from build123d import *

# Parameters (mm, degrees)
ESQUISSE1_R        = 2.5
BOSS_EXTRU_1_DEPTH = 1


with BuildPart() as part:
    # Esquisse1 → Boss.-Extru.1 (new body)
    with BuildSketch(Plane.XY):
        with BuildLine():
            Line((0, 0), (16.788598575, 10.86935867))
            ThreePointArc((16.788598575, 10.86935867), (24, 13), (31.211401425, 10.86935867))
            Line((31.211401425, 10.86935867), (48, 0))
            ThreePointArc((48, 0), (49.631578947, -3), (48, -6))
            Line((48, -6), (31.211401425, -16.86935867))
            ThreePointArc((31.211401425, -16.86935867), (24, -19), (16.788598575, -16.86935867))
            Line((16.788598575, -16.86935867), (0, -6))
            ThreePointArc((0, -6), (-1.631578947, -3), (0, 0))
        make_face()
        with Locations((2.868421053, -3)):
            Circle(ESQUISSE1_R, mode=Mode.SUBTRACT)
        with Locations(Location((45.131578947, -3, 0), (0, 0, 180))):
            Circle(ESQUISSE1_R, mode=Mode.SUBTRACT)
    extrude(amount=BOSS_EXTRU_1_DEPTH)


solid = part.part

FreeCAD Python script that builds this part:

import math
import FreeCAD as App
import Part
import Sketcher
from FreeCAD import Vector

doc = App.newDocument("Part")
body = doc.addObject("PartDesign::Body", "Body")

sketch1 = body.newObject("Sketcher::SketchObject", "Sketch")
sketch1.AttachmentSupport = (doc.getObject("XY_Plane"), [""])
sketch1.MapMode = "FlatFace"
sketch1.addGeometry(Part.LineSegment(Vector(16.8, 10.9, 0), Vector(0, 0, 0)), False)
sketch1.addGeometry(Part.ArcOfCircle(Part.Circle(Vector(1.9, -3, 0), Vector(0, 0, 1), 3.6), math.radians(123), math.radians(237)), False)
sketch1.addGeometry(Part.LineSegment(Vector(0, -6, 0), Vector(16.8, -16.9, 0)), False)
sketch1.addGeometry(Part.ArcOfCircle(Part.Circle(Vector(24, -5.7, 0), Vector(0, 0, 1), 13.3), math.radians(-123), math.radians(-57)), False)
sketch1.addGeometry(Part.LineSegment(Vector(31.2, -16.9, 0), Vector(48, -6, 0)), False)
sketch1.addGeometry(Part.ArcOfCircle(Part.Circle(Vector(46.1, -3, 0), Vector(0, 0, 1), 3.6), math.radians(-57), math.radians(57)), False)
sketch1.addGeometry(Part.LineSegment(Vector(48, 0, 0), Vector(31.2, 10.9, 0)), False)
sketch1.addGeometry(Part.ArcOfCircle(Part.Circle(Vector(24, -0.3, 0), Vector(0, 0, 1), 13.3), math.radians(57), math.radians(123)), False)
sketch1.addGeometry(Part.Circle(Vector(45.1, -3, 0), Vector(0, 0, 1), 2.5), False)
sketch1.addGeometry(Part.Circle(Vector(2.9, -3, 0), Vector(0, 0, 1), 2.5), False)
sketch1.addConstraint(Sketcher.Constraint("Tangent", 0, 2, 1, 1))
sketch1.addConstraint(Sketcher.Constraint("Tangent", 1, 2, 2, 1))
sketch1.addConstraint(Sketcher.Constraint("Tangent", 2, 2, 3, 1))
sketch1.addConstraint(Sketcher.Constraint("Tangent", 3, 2, 4, 1))
sketch1.addConstraint(Sketcher.Constraint("Tangent", 4, 2, 5, 1))
sketch1.addConstraint(Sketcher.Constraint("Tangent", 5, 2, 6, 1))
sketch1.addConstraint(Sketcher.Constraint("Tangent", 6, 2, 7, 1))
sketch1.addConstraint(Sketcher.Constraint("Tangent", 7, 2, 0, 1))
sketch1.addConstraint(Sketcher.Constraint("Coincident", 0, 2, -1, 1))
sketch1.addConstraint(Sketcher.Constraint("Equal", 1, 5))
sketch1.addConstraint(Sketcher.Constraint("Equal", 3, 7))
sketch1.addConstraint(Sketcher.Constraint("Equal", 8, 9))
sketch1.addConstraint(Sketcher.Constraint("PointOnObject", 1, 2, -2))
sketch1.addConstraint(Sketcher.Constraint("PointOnObject", 5, 2, -1))
sketch1.addConstraint(Sketcher.Constraint("Parallel", 0, 4))
sketch1.addConstraint(Sketcher.Constraint("Parallel", 2, 6))
sketch1.addConstraint(Sketcher.Constraint("Horizontal", 5, 3, 8, 3))
sketch1.addConstraint(Sketcher.Constraint("Horizontal", 8, 3, 9, 3))
sketch1.addConstraint(Sketcher.Constraint("Diameter", 8, 5.0))
sketch1.addConstraint(Sketcher.Constraint("Distance", 0, 20.0))
sketch1.addConstraint(Sketcher.Constraint("DistanceY", 1, 3, -1, 1, 3.0))
sketch1.addConstraint(Sketcher.Constraint("DistanceX", -1, 1, 3, 3, 24.0))
sketch1.addConstraint(Sketcher.Constraint("Radius", 3, 13.269231))
sketch1.addConstraint(Sketcher.Constraint("DistanceX", -1, 1, 8, 3, 45.131579))
sketch1.addConstraint(Sketcher.Constraint("DistanceX", -1, 1, 9, 3, 2.868421))
pad1 = body.newObject("PartDesign::Pad", "Pad")
pad1.Profile = sketch1
pad1.Length = 1

doc.recompute()
